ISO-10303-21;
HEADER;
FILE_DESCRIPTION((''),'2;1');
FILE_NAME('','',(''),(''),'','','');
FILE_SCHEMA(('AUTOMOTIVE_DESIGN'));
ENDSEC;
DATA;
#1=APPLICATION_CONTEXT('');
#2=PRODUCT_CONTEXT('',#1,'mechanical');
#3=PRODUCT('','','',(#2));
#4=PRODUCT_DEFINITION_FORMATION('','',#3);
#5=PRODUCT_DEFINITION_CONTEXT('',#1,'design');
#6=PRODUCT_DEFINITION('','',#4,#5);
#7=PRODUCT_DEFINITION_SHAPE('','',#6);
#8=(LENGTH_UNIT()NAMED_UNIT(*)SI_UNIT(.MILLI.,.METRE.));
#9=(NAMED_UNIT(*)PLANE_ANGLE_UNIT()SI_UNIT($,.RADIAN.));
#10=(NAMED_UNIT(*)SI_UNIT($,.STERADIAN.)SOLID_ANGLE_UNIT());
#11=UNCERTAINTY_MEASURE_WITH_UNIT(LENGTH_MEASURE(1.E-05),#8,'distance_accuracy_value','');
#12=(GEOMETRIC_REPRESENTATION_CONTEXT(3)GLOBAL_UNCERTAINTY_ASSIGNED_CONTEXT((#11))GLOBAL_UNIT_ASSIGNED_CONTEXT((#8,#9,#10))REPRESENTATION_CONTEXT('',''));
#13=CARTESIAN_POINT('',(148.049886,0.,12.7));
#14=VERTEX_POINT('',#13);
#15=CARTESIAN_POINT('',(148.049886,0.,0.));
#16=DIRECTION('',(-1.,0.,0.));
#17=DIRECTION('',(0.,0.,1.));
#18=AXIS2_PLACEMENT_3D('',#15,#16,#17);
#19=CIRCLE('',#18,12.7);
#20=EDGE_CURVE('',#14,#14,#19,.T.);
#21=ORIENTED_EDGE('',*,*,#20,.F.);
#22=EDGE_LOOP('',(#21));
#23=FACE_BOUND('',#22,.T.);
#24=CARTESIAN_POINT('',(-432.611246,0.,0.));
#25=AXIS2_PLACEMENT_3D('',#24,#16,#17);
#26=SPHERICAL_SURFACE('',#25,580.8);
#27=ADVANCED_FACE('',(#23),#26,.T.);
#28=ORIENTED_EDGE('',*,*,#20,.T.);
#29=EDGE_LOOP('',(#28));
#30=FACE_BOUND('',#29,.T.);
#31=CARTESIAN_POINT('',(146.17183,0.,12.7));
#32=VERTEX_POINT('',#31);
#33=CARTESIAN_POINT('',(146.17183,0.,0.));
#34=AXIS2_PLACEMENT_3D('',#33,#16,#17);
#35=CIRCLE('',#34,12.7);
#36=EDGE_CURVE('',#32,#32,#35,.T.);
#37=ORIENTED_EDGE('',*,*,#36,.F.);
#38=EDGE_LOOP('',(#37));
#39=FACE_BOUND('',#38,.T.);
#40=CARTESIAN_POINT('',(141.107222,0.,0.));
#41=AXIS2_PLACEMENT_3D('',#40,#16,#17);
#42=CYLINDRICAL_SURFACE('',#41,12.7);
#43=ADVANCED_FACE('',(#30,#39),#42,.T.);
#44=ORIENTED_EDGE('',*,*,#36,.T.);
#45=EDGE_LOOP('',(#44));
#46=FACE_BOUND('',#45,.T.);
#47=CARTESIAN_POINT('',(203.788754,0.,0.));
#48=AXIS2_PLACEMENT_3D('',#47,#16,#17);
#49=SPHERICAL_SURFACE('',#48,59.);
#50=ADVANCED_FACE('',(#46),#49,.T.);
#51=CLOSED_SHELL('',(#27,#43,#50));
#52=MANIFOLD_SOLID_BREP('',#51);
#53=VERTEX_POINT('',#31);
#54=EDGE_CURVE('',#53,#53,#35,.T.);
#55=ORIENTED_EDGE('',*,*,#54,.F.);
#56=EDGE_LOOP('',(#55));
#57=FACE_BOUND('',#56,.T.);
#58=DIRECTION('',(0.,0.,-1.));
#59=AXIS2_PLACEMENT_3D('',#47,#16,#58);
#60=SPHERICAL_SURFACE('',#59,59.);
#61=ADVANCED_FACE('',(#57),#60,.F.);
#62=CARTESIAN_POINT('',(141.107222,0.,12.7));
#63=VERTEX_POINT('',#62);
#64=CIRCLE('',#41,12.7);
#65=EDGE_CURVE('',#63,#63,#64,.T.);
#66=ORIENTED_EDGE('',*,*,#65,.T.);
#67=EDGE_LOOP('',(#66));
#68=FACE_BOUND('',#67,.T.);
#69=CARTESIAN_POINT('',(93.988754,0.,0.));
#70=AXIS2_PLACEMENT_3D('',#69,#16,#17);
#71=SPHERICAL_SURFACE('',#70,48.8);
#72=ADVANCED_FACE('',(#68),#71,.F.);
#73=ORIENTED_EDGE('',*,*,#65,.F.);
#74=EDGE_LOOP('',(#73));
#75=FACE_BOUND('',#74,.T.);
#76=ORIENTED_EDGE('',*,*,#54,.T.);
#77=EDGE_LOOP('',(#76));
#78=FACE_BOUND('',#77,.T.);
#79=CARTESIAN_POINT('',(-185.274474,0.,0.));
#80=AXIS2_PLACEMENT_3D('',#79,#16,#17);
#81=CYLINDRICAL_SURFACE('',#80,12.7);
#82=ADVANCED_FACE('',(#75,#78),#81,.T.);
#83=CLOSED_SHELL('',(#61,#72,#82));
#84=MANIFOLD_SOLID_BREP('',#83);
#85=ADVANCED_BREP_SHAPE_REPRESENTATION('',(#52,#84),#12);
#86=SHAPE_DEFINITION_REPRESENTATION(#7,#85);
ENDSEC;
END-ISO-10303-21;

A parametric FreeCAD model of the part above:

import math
import FreeCAD as App
import Part
import Sketcher

V = App.Vector

doc = App.newDocument("Part")
body = doc.addObject("PartDesign::Body", "Body")

# Sketch on XZ plane
sketch1 = body.newObject("Sketcher::SketchObject", "Sketch")
sketch1.AttachmentSupport = (doc.getObject("XZ_Plane"), [""])
sketch1.MapMode = "FlatFace"
sketch1.addGeometry([
    Part.LineSegment(V(146.17183, -12.7, 0), V(141.107222, -12.7, 0)),
    Part.ArcOfCircle(Part.Circle(V(93.988754, 0, 0), V(0, 0, 1), 48.8), math.radians(-15.084654), math.radians(0)),
    Part.LineSegment(V(142.788754, 0, 0), V(144.788754, 0, 0)),
    Part.ArcOfCircle(Part.Circle(V(203.788755, 0, 0), V(0, 0, 1), 59), math.radians(-180), math.radians(-167.569557)),
], False)
sketch1.addConstraint([
    Sketcher.Constraint("Coincident", 0, 2, 1, 1),
    Sketcher.Constraint("Coincident", 1, 2, 2, 1),
    Sketcher.Constraint("Coincident", 2, 2, 3, 1),
    Sketcher.Constraint("Coincident", 3, 2, 0, 1),
    Sketcher.Constraint("Horizontal", 0),
    Sketcher.Constraint("Horizontal", 2),
    Sketcher.Constraint("PointOnObject", 1, 3, -1),
    Sketcher.Constraint("PointOnObject", 3, 3, -1),
    Sketcher.Constraint("PointOnObject", 1, 2, -1),
    Sketcher.Constraint("Radius", 3, 59.0),
    Sketcher.Constraint("Radius", 1, 48.8),
    Sketcher.Constraint("DistanceX", 2, 1, 2, 2, 2.0),
    Sketcher.Constraint("DistanceY", 0, 2, -1, 1, 12.7),
    Sketcher.Constraint("DistanceX", -1, 1, 3, 2, 146.17183),
])
revolution = body.newObject("PartDesign::Revolution", "Revolution")
revolution.Profile = sketch1
revolution.ReferenceAxis = (sketch1, ["H_Axis"])
revolution.Angle = 360
body2 = doc.addObject("PartDesign::Body", "Body001")

# Sketch on XZ plane
sketch2 = body2.newObject("Sketcher::SketchObject", "Sketch001")
sketch2.AttachmentSupport = (doc.getObject("XZ_Plane001"), [""])
sketch2.MapMode = "FlatFace"
sketch2.addGeometry([
    Part.LineSegment(V(148.049886, -12.7, 0), V(146.17183, -12.7, 0)),
    Part.ArcOfCircle(Part.Circle(V(203.788755, 0, 0), V(0, 0, 1), 59), math.radians(-180), math.radians(-167.569557)),
    Part.LineSegment(V(144.788754, 0, 0), V(148.188754, 0, 0)),
    Part.ArcOfCircle(Part.Circle(V(-432.61125, 0, 0), V(0, 0, 1), 580.800004), math.radians(-1.252952), math.radians(0)),
], False)
sketch2.addConstraint([
    Sketcher.Constraint("Coincident", 0, 2, 1, 2),
    Sketcher.Constraint("Coincident", 1, 1, 2, 1),
    Sketcher.Constraint("Coincident", 2, 2, 3, 2),
    Sketcher.Constraint("Coincident", 3, 1, 0, 1),
    Sketcher.Constraint("Horizontal", 0),
    Sketcher.Constraint("Horizontal", 2),
    Sketcher.Constraint("PointOnObject", 1, 3, -1),
    Sketcher.Constraint("PointOnObject", 3, 3, -1),
    Sketcher.Constraint("PointOnObject", 1, 1, -1),
    Sketcher.Constraint("Radius", 1, 59.0),
    Sketcher.Constraint("DistanceX", 2, 1, 2, 2, 3.4),
    Sketcher.Constraint("DistanceY", 0, 2, -1, 1, 12.7),
    Sketcher.Constraint("Radius", 3, 580.800004),
    Sketcher.Constraint("DistanceX", 3, 3, -1, 1, 432.61125),
])
revolution2 = body2.newObject("PartDesign::Revolution", "Revolution001")
revolution2.Profile = sketch2
revolution2.ReferenceAxis = (sketch2, ["H_Axis"])
revolution2.Angle = 360

doc.recompute()
